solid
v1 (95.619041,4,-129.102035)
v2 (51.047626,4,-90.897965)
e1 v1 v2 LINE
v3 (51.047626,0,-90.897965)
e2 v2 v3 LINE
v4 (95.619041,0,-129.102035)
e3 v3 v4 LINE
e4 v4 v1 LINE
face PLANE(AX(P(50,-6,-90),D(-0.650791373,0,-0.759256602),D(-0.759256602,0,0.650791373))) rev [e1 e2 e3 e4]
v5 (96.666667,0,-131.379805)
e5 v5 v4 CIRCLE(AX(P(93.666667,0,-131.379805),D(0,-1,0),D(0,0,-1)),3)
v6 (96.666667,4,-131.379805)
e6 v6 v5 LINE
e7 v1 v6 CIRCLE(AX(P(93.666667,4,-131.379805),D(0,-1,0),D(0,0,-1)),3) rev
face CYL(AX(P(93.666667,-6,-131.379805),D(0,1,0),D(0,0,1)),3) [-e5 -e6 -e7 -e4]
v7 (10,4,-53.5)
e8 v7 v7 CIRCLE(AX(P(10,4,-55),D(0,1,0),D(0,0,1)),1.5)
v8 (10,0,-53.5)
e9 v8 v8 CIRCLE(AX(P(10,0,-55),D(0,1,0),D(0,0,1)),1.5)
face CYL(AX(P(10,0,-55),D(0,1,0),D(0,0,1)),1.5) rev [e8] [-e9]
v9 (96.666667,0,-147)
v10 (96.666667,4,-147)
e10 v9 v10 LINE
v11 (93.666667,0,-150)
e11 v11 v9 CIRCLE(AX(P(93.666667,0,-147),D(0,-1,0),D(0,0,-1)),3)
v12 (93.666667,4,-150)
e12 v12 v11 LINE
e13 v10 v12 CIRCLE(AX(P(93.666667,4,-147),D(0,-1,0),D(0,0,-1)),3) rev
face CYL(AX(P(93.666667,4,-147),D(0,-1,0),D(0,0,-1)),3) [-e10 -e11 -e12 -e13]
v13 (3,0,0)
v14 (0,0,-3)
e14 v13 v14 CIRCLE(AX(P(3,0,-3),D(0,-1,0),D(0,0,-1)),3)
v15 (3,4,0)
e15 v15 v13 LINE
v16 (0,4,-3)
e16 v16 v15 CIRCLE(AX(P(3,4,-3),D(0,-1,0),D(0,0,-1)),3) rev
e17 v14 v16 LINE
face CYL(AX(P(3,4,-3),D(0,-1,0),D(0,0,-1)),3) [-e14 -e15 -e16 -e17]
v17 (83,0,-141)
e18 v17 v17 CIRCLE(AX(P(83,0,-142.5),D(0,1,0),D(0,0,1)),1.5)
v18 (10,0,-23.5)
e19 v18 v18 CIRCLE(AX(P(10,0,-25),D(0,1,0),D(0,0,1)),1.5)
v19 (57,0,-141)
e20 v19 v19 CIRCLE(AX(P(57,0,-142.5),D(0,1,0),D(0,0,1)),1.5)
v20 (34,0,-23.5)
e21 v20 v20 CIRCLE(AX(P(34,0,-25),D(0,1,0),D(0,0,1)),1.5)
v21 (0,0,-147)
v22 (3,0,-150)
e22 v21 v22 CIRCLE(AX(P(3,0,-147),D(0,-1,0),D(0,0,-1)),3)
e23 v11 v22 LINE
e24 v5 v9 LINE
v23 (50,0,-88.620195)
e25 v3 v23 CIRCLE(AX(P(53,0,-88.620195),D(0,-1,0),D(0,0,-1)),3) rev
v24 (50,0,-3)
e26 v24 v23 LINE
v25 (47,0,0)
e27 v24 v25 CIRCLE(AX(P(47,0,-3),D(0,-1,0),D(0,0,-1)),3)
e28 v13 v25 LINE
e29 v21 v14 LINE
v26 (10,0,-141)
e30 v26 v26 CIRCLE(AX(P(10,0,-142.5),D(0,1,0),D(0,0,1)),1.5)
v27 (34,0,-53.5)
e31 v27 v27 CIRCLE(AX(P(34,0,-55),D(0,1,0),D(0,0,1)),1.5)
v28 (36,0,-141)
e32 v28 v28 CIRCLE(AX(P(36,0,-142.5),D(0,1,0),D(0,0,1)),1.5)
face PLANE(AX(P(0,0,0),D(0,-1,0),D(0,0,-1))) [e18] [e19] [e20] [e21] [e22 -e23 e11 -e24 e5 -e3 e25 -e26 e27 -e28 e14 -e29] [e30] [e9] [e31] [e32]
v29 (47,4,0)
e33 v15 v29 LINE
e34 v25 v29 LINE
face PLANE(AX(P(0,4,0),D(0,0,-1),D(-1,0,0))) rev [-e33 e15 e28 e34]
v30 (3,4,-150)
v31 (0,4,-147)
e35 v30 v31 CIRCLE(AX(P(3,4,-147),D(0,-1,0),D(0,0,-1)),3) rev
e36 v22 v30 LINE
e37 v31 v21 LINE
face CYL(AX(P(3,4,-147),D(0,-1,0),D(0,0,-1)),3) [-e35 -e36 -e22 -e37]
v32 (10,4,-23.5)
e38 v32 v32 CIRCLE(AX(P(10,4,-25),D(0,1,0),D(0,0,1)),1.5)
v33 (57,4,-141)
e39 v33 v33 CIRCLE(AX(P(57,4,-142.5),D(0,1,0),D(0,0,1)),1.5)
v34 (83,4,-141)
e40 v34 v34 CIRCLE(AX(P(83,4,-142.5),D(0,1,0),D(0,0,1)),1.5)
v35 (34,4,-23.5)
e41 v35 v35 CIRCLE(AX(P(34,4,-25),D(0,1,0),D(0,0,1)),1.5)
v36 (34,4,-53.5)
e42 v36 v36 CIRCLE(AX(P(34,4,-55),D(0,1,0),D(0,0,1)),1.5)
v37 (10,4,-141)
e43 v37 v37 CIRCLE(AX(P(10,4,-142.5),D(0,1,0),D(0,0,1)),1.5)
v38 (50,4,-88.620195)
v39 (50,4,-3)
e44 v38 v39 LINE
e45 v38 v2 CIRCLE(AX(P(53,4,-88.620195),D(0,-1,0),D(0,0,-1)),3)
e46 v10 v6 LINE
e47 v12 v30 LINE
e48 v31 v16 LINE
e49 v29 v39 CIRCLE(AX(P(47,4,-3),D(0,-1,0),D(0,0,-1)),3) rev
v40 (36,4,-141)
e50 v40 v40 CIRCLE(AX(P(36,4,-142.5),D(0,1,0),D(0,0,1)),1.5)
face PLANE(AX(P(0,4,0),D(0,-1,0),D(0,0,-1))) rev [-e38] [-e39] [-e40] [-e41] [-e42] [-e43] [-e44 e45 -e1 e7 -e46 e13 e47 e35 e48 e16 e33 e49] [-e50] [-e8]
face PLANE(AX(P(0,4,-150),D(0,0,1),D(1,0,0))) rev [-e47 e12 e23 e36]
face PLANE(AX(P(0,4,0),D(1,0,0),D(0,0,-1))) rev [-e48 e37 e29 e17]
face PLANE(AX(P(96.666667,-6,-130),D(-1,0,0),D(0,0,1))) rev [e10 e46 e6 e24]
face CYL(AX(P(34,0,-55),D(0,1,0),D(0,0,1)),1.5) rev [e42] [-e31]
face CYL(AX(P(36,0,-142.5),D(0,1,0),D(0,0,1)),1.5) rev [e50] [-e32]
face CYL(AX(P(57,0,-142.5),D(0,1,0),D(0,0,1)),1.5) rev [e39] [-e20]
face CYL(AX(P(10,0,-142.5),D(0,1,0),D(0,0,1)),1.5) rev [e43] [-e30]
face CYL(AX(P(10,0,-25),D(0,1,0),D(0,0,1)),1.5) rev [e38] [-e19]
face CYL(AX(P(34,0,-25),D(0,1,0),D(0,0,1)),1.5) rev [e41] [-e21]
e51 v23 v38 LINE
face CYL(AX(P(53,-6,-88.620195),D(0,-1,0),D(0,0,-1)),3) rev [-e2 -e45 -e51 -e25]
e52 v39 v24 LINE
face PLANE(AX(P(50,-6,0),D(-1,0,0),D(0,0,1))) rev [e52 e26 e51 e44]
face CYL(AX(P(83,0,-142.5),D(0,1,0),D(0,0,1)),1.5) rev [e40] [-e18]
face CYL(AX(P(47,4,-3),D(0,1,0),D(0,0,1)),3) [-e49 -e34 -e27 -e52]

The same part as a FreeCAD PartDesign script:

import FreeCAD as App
import Part
import Sketcher
Q = App.Units.Quantity


def edges_at(feature, points):
    """Names of the edges that pass closest to the given points."""
    edges = feature.Shape.Edges
    near = lambda p: min(range(len(edges)), key=lambda i: edges[i].distToShape(Part.Vertex(*p))[0])
    return sorted({f"Edge{near(p) + 1}" for p in points})

doc = App.newDocument("Part")
body = doc.addObject("PartDesign::Body", "Body")

# Sketch on XZ plane
sketch1 = body.newObject("Sketcher::SketchObject", "Sketch")
sketch1.AttachmentSupport = (doc.getObject("XZ_Plane"), [""])
sketch1.MapMode = "FlatFace"
sketch1.addGeometry(Part.LineSegment(App.Vector(75, 0, 0), App.Vector(100, -150, 0)), False)
sketch1.addGeometry(Part.LineSegment(App.Vector(100, -150, 0), App.Vector(0, -150, 0)), False)
sketch1.addGeometry(Part.LineSegment(App.Vector(0, -150, 0), App.Vector(0, 0, 0)), False)
sketch1.addGeometry(Part.LineSegment(App.Vector(0, 0, 0), App.Vector(75, 0, 0)), False)
sketch1.addConstraint(Sketcher.Constraint("Coincident", 0, 2, 1, 1))
sketch1.addConstraint(Sketcher.Constraint("Coincident", 1, 2, 2, 1))
sketch1.addConstraint(Sketcher.Constraint("Coincident", 2, 2, 3, 1))
sketch1.addConstraint(Sketcher.Constraint("Coincident", 3, 2, 0, 1))
sketch1.addConstraint(Sketcher.Constraint("Horizontal", 1))
sketch1.addConstraint(Sketcher.Constraint("Vertical", 2))
sketch1.addConstraint(Sketcher.Constraint("Horizontal", 3))
sketch1.addConstraint(Sketcher.Constraint("Coincident", 2, 2, -1, 1))
sketch1.addConstraint(Sketcher.Constraint("DistanceX", 1, 2, 1, 1, Q("100 mm")))
sketch1.addConstraint(Sketcher.Constraint("DistanceX", 3, 1, 3, 2, Q("75 mm")))
sketch1.addConstraint(Sketcher.Constraint("DistanceY", 2, 1, 2, 2, Q("150 mm")))
pad1 = body.newObject("PartDesign::Pad", "Pad")
pad1.Profile = sketch1
pad1.Length = 4
pad1.Reversed = True

# Sketch on XZ plane
sketch2 = body.newObject("Sketcher::SketchObject", "Sketch001")
sketch2.AttachmentSupport = (doc.getObject("XZ_Plane"), [""])
sketch2.MapMode = "FlatFace"
sketch2.AttachmentOffset = App.Placement(App.Vector(0, 0, -4), App.Rotation())
sketch2.addGeometry(Part.Circle(App.Vector(10, -25, 0), App.Vector(0, 0, 1), 1.5), False)
sketch2.addGeometry(Part.Circle(App.Vector(34, -55, 0), App.Vector(0, 0, 1), 1.5), False)
sketch2.addGeometry(Part.Circle(App.Vector(34, -25, 0), App.Vector(0, 0, 1), 1.5), False)
sketch2.addGeometry(Part.Circle(App.Vector(10, -55, 0), App.Vector(0, 0, 1), 1.5), False)
sketch2.addConstraint(Sketcher.Constraint("Equal", 0, 1))
sketch2.addConstraint(Sketcher.Constraint("Equal", 1, 2))
sketch2.addConstraint(Sketcher.Constraint("Equal", 2, 3))
sketch2.addConstraint(Sketcher.Constraint("Horizontal", 0, 3, 2, 3))
sketch2.addConstraint(Sketcher.Constraint("Horizontal", 1, 3, 3, 3))
sketch2.addConstraint(Sketcher.Constraint("Vertical", 1, 3, 2, 3))
sketch2.addConstraint(Sketcher.Constraint("Vertical", 0, 3, 3, 3))
sketch2.addConstraint(Sketcher.Constraint("Diameter", 0, Q("3 mm")))
sketch2.addConstraint(Sketcher.Constraint("DistanceX", -1, 1, 0, 3, Q("10 mm")))
sketch2.addConstraint(Sketcher.Constraint("DistanceY", 0, 3, -1, 1, Q("25 mm")))
sketch2.addConstraint(Sketcher.Constraint("DistanceX", -1, 1, 1, 3, Q("34 mm")))
sketch2.addConstraint(Sketcher.Constraint("DistanceY", 1, 3, -1, 1, Q("55 mm")))
pocket1 = body.newObject("PartDesign::Pocket", "Pocket")
pocket1.Profile = sketch2
pocket1.Length = 4
pocket1.Reversed = True

# Sketch on XZ plane
sketch3 = body.newObject("Sketcher::SketchObject", "Sketch002")
sketch3.AttachmentSupport = (doc.getObject("XZ_Plane"), [""])
sketch3.MapMode = "FlatFace"
sketch3.AttachmentOffset = App.Placement(App.Vector(0, 0, -4), App.Rotation())
sketch3.addGeometry(Part.Circle(App.Vector(10, -142.5, 0), App.Vector(0, 0, 1), 1.5), False)
sketch3.addGeometry(Part.Circle(App.Vector(36, -142.5, 0), App.Vector(0, 0, 1), 1.5), False)
sketch3.addGeometry(Part.Circle(App.Vector(57, -142.5, 0), App.Vector(0, 0, 1), 1.5), False)
sketch3.addGeometry(Part.Circle(App.Vector(83, -142.5, 0), App.Vector(0, 0, 1), 1.5), False)
sketch3.addConstraint(Sketcher.Constraint("Equal", 0, 1))
sketch3.addConstraint(Sketcher.Constraint("Equal", 1, 2))
sketch3.addConstraint(Sketcher.Constraint("Equal", 2, 3))
sketch3.addConstraint(Sketcher.Constraint("Horizontal", 0, 3, 1, 3))
sketch3.addConstraint(Sketcher.Constraint("Horizontal", 1, 3, 2, 3))
sketch3.addConstraint(Sketcher.Constraint("Horizontal", 2, 3, 3, 3))
sketch3.addConstraint(Sketcher.Constraint("Diameter", 0, Q("3 mm")))
sketch3.addConstraint(Sketcher.Constraint("DistanceX", -1, 1, 0, 3, Q("10 mm")))
sketch3.addConstraint(Sketcher.Constraint("DistanceX", -1, 1, 1, 3, Q("36 mm")))
sketch3.addConstraint(Sketcher.Constraint("DistanceX", -1, 1, 2, 3, Q("57 mm")))
sketch3.addConstraint(Sketcher.Constraint("DistanceX", -1, 1, 3, 3, Q("83 mm")))
sketch3.addConstraint(Sketcher.Constraint("DistanceY", 0, 3, -1, 1, Q("142.5 mm")))
pocket2 = body.newObject("PartDesign::Pocket", "Pocket001")
pocket2.Profile = sketch3
pocket2.Length = 4
pocket2.Reversed = True

# Sketch on XZ plane
sketch4 = body.newObject("Sketcher::SketchObject", "Sketch003")
sketch4.AttachmentSupport = (doc.getObject("XZ_Plane"), [""])
sketch4.MapMode = "FlatFace"
sketch4.AttachmentOffset = App.Placement(App.Vector(0, 0, -4), App.Rotation())
sketch4.addGeometry(Part.LineSegment(App.Vector(50, 0, 0), App.Vector(122, 0, 0)), False)
sketch4.addGeometry(Part.LineSegment(App.Vector(122, 0, 0), App.Vector(151, -90, 0)), False)
sketch4.addGeometry(Part.LineSegment(App.Vector(151, -90, 0), App.Vector(50, -90, 0)), False)
sketch4.addGeometry(Part.LineSegment(App.Vector(50, -90, 0), App.Vector(50, 0, 0)), False)
sketch4.addConstraint(Sketcher.Constraint("Coincident", 0, 2, 1, 1))
sketch4.addConstraint(Sketcher.Constraint("Coincident", 1, 2, 2, 1))
sketch4.addConstraint(Sketcher.Constraint("Coincident", 2, 2, 3, 1))
sketch4.addConstraint(Sketcher.Constraint("Coincident", 3, 2, 0, 1))
sketch4.addConstraint(Sketcher.Constraint("Horizontal", 0))
sketch4.addConstraint(Sketcher.Constraint("Horizontal", 2))
sketch4.addConstraint(Sketcher.Constraint("Vertical", 3))
sketch4.addConstraint(Sketcher.Constraint("PointOnObject", 0, 2, -1))
sketch4.addConstraint(Sketcher.Constraint("DistanceY", 3, 1, 3, 2, Q("90 mm")))
sketch4.addConstraint(Sketcher.Constraint("DistanceX", -1, 1, 2, 2, Q("50 mm")))
sketch4.addConstraint(Sketcher.Constraint("Distance", 1, Q("94.528462 mm")))
sketch4.addConstraint(Sketcher.Constraint("DistanceX", 0, 1, 0, 2, Q("71.630506 mm")))
pocket3 = body.newObject("PartDesign::Pocket", "Pocket002")
pocket3.Profile = sketch4
pocket3.Length = 10
pocket3.Reversed = True

# Sketch on XZ plane
sketch5 = body.newObject("Sketcher::SketchObject", "Sketch004")
sketch5.AttachmentSupport = (doc.getObject("XZ_Plane"), [""])
sketch5.MapMode = "FlatFace"
sketch5.AttachmentOffset = App.Placement(App.Vector(0, 0, -4), App.Rotation())
sketch5.addGeometry(Part.LineSegment(App.Vector(67, -65, 0), App.Vector(150, -125, 0)), False)
sketch5.addGeometry(Part.LineSegment(App.Vector(150, -125, 0), App.Vector(97, -130, 0)), False)
sketch5.addGeometry(Part.LineSegment(App.Vector(97, -130, 0), App.Vector(50, -90, 0)), False)
sketch5.addGeometry(Part.LineSegment(App.Vector(50, -90, 0), App.Vector(67, -65, 0)), False)
sketch5.addConstraint(Sketcher.Constraint("Coincident", 0, 2, 1, 1))
sketch5.addConstraint(Sketcher.Constraint("Coincident", 1, 2, 2, 1))
sketch5.addConstraint(Sketcher.Constraint("Coincident", 2, 2, 3, 1))
sketch5.addConstraint(Sketcher.Constraint("Coincident", 3, 2, 0, 1))
sketch5.addConstraint(Sketcher.Constraint("DistanceY", 1, 2, -1, 1, Q("130 mm")))
sketch5.addConstraint(Sketcher.Constraint("DistanceX", -1, 1, 2, 2, Q("50 mm")))
sketch5.addConstraint(Sketcher.Constraint("DistanceY", 2, 2, -1, 1, Q("90 mm")))
sketch5.addConstraint(Sketcher.Constraint("DistanceY", 0, 2, -1, 1, Q("125.352298 mm")))
sketch5.addConstraint(Sketcher.Constraint("Distance", 0, Q("103.24688 mm")))
sketch5.addConstraint(Sketcher.Constraint("Distance", 2, Q("61.46363 mm")))
sketch5.addConstraint(Sketcher.Constraint("Distance", 3, Q("30.481858 mm")))
sketch5.addConstraint(Sketcher.Constraint("DistanceX", -1, 1, 3, 2, Q("66.77054 mm")))
pocket4 = body.newObject("PartDesign::Pocket", "Pocket003")
pocket4.Profile = sketch5
pocket4.Length = 10
pocket4.Reversed = True

# Sketch on XZ plane
sketch6 = body.newObject("Sketcher::SketchObject", "Sketch005")
sketch6.AttachmentSupport = (doc.getObject("XZ_Plane"), [""])
sketch6.MapMode = "FlatFace"
sketch6.AttachmentOffset = App.Placement(App.Vector(0, 0, -4), App.Rotation())
sketch6.addGeometry(Part.LineSegment(App.Vector(97, -130, 0), App.Vector(141, -130, 0)), False)
sketch6.addGeometry(Part.LineSegment(App.Vector(141, -130, 0), App.Vector(108, -161, 0)), False)
sketch6.addGeometry(Part.LineSegment(App.Vector(108, -161, 0), App.Vector(97, -161, 0)), False)
sketch6.addGeometry(Part.LineSegment(App.Vector(97, -161, 0), App.Vector(97, -130, 0)), False)
sketch6.addConstraint(Sketcher.Constraint("Coincident", 0, 2, 1, 1))
sketch6.addConstraint(Sketcher.Constraint("Coincident", 1, 2, 2, 1))
sketch6.addConstraint(Sketcher.Constraint("Coincident", 2, 2, 3, 1))
sketch6.addConstraint(Sketcher.Constraint("Coincident", 3, 2, 0, 1))
sketch6.addConstraint(Sketcher.Constraint("Horizontal", 0))
sketch6.addConstraint(Sketcher.Constraint("Horizontal", 2))
sketch6.addConstraint(Sketcher.Constraint("Vertical", 3))
sketch6.addConstraint(Sketcher.Constraint("DistanceY", 0, 2, -1, 1, Q("130 mm")))
sketch6.addConstraint(Sketcher.Constraint("DistanceX", 2, 2, 2, 1, Q("10.83981 mm")))
sketch6.addConstraint(Sketcher.Constraint("DistanceX", 0, 1, 0, 2, Q("43.887605 mm")))
sketch6.addConstraint(Sketcher.Constraint("DistanceY", 3, 1, 3, 2, Q("30.861158 mm")))
sketch6.addConstraint(Sketcher.Constraint("DistanceX", -1, 1, 0, 2, Q("140.554271 mm")))
pocket5 = body.newObject("PartDesign::Pocket", "Pocket004")
pocket5.Profile = sketch6
pocket5.Length = 10
pocket5.Reversed = True
doc.recompute()

fillet = body.newObject("PartDesign::Fillet", "Fillet")
fillet.Base = (pocket5, edges_at(pocket5, [
    (50, 2, -90),
    (50, 2, 0),
    (96.667, 2, -130),
    (0, 2, -150),
    (0, 2, 0),
    (96.667, 2, -150),
]))
fillet.Radius = 3

doc.recompute()
